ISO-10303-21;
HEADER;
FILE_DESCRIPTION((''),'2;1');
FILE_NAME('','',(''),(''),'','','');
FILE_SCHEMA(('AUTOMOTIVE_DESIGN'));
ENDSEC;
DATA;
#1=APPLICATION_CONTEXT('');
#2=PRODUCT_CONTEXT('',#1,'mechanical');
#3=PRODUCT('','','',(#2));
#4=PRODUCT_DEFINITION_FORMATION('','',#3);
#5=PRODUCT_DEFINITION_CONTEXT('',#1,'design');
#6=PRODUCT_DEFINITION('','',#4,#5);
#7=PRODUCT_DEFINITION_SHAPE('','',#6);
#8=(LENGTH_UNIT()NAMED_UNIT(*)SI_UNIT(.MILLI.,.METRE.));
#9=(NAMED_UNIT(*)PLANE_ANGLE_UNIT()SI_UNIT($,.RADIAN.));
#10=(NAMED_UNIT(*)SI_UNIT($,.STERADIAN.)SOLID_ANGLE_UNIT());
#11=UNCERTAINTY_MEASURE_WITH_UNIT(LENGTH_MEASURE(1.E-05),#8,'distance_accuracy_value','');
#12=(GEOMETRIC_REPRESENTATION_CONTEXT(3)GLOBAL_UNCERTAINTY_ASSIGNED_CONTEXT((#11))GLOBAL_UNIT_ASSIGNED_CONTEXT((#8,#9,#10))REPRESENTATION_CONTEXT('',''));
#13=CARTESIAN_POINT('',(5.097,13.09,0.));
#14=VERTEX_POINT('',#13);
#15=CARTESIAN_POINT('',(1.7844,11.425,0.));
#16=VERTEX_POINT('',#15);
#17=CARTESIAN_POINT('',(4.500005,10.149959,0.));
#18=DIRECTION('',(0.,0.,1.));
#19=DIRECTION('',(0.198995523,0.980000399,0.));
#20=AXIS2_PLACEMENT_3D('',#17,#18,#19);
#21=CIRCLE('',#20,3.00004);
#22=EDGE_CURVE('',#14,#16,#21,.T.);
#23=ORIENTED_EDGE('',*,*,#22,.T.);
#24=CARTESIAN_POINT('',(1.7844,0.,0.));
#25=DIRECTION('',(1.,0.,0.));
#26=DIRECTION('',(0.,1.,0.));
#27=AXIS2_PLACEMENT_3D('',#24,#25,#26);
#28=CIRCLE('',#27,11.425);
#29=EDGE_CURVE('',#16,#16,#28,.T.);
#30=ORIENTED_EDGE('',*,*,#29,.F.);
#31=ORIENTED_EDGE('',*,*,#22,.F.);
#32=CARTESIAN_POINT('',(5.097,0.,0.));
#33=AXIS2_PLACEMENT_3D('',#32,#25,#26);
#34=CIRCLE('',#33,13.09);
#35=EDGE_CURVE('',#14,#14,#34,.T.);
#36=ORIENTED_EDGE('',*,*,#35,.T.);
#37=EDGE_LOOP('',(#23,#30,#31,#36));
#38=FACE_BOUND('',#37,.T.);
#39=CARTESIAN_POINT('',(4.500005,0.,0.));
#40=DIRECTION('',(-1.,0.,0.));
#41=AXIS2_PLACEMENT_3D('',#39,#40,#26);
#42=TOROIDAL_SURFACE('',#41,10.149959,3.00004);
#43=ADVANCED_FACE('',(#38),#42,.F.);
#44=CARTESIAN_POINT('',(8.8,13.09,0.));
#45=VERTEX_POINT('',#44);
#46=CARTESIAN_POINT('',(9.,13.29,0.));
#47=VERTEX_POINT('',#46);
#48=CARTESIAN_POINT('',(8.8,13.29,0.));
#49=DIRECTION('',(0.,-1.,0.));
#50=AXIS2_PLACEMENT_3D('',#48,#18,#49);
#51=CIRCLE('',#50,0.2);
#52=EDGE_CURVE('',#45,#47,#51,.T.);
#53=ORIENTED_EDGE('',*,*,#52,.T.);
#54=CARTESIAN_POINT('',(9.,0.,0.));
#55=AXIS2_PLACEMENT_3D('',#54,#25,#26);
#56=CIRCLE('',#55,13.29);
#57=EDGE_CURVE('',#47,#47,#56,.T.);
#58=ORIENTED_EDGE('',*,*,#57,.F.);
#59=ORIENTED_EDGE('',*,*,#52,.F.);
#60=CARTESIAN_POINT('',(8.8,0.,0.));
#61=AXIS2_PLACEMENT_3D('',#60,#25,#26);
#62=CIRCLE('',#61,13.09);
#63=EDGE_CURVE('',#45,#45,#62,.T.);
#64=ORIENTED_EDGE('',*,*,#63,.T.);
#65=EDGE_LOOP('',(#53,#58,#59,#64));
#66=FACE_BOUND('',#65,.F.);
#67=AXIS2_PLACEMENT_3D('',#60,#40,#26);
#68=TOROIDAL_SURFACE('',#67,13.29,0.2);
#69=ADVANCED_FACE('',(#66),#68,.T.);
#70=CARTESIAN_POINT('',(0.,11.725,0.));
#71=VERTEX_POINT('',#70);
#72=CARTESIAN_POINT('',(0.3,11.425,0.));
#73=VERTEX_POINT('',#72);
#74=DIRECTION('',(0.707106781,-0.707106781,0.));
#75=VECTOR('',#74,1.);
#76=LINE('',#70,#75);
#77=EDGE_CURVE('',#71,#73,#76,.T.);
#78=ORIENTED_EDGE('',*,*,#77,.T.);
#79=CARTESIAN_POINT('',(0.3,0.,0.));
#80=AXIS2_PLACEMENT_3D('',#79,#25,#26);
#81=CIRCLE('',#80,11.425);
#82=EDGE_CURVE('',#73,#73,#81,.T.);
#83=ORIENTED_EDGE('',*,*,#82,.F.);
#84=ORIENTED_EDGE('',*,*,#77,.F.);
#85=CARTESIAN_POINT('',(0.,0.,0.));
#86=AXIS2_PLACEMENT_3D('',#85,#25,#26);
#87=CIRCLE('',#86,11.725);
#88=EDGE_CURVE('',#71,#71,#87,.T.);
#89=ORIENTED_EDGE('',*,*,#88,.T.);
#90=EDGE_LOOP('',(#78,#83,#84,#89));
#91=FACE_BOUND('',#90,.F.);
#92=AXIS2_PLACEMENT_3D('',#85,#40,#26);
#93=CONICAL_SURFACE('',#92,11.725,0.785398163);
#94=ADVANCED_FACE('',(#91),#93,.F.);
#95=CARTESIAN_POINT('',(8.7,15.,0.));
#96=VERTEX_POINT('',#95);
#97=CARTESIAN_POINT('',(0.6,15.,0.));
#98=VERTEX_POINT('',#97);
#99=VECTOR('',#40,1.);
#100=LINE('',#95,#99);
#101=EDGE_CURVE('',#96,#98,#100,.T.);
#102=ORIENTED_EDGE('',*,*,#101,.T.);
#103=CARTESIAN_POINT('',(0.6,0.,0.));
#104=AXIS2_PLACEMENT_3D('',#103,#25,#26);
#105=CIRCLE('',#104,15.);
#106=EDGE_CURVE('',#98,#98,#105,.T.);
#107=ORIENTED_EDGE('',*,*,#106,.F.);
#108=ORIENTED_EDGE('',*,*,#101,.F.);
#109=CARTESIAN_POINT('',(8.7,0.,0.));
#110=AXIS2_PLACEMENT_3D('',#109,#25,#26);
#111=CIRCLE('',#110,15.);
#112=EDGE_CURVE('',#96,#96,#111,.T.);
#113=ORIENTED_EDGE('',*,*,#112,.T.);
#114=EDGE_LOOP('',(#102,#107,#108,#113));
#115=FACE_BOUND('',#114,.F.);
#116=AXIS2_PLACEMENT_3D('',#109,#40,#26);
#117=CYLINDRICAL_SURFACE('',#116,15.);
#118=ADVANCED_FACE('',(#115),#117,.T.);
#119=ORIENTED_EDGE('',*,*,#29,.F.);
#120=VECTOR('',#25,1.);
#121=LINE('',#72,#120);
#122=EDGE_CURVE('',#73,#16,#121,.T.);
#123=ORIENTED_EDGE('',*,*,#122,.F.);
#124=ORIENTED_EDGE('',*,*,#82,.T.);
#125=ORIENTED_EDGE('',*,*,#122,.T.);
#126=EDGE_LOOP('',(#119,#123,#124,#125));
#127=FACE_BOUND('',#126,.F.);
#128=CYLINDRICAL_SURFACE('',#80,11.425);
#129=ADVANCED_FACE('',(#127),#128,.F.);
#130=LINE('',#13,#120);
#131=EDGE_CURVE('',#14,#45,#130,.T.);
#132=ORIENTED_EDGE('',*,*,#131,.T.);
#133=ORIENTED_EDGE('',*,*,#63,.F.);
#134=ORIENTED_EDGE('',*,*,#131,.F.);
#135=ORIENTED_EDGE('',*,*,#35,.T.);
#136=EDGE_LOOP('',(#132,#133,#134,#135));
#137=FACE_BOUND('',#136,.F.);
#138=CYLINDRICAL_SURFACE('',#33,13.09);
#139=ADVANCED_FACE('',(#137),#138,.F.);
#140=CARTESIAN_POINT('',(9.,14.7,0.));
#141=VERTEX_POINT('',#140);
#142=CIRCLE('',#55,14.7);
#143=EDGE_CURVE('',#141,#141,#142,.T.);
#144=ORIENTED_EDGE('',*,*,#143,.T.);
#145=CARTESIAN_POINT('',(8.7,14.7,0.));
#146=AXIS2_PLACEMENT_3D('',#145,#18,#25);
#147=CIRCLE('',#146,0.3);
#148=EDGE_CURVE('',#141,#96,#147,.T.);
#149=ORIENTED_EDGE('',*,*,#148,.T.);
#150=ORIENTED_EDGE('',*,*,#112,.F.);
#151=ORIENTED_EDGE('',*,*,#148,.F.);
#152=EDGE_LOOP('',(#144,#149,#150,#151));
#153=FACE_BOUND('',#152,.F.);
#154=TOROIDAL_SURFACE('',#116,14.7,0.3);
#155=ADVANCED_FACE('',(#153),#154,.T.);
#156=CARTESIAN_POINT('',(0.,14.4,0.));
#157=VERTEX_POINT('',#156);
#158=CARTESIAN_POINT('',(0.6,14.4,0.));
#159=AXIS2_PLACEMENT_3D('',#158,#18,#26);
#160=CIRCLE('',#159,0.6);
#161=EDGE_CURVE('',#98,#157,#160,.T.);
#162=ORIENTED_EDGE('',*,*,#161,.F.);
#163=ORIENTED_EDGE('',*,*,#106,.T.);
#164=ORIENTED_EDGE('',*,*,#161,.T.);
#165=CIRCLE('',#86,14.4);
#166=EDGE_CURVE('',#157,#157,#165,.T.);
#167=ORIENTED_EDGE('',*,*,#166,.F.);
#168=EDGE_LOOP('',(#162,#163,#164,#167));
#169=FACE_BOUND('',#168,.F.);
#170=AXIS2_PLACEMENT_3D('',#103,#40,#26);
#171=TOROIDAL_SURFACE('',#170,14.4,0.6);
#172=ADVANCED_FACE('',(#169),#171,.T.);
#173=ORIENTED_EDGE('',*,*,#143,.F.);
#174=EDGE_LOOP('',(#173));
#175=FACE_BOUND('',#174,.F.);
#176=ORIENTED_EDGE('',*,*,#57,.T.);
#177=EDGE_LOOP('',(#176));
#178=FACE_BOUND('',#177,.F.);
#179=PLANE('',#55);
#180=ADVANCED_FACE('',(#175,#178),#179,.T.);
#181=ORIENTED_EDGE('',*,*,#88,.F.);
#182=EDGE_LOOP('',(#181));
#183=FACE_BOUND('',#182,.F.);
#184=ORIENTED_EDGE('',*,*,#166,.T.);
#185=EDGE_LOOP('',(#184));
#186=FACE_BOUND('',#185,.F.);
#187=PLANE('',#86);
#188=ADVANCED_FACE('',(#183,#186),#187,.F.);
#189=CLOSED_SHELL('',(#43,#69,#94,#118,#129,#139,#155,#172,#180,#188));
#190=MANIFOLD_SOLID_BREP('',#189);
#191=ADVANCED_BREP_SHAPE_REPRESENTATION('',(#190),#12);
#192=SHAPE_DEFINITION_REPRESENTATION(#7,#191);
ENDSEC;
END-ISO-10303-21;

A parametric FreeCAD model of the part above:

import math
import FreeCAD as App
import Part
import Sketcher
from FreeCAD import Vector
Q = App.Units.Quantity

doc = App.newDocument("Part")
body = doc.addObject("PartDesign::Body", "Body")

# Sketch on XY plane
sketch1 = body.newObject("Sketcher::SketchObject", "Sketch")
sketch1.AttachmentSupport = (doc.getObject("XY_Plane"), [""])
sketch1.MapMode = "FlatFace"
sketch1.addGeometry(Part.LineSegment(Vector(0, 14.4, 0), Vector(0, 11.72, 0)), False)
sketch1.addGeometry(Part.LineSegment(Vector(0, 11.72, 0), Vector(0.3, 11.43, 0)), False)
sketch1.addGeometry(Part.LineSegment(Vector(0.3, 11.43, 0), Vector(1.78, 11.43, 0)), False)
sketch1.addGeometry(Part.ArcOfCircle(Part.Circle(Vector(4.5, 10.15, 0), Vector(0, 0, 1), 3), math.radians(79), math.radians(155)), False)
sketch1.addGeometry(Part.LineSegment(Vector(5.1, 13.09, 0), Vector(8.8, 13.09, 0)), False)
sketch1.addGeometry(Part.ArcOfCircle(Part.Circle(Vector(8.8, 13.29, 0), Vector(0, 0, 1), 0.2), math.radians(-90), math.radians(0)), False)
sketch1.addGeometry(Part.LineSegment(Vector(9, 13.29, 0), Vector(9, 14.7, 0)), False)
sketch1.addGeometry(Part.ArcOfCircle(Part.Circle(Vector(8.7, 14.7, 0), Vector(0, 0, 1), 0.3), math.radians(0), math.radians(90)), False)
sketch1.addGeometry(Part.LineSegment(Vector(8.7, 15, 0), Vector(0.6, 15, 0)), False)
sketch1.addGeometry(Part.ArcOfCircle(Part.Circle(Vector(0.6, 14.4, 0), Vector(0, 0, 1), 0.6), math.radians(90), math.radians(180)), False)
sketch1.addConstraint(Sketcher.Constraint("Coincident", 0, 2, 1, 1))
sketch1.addConstraint(Sketcher.Constraint("Coincident", 1, 2, 2, 1))
sketch1.addConstraint(Sketcher.Constraint("Coincident", 2, 2, 3, 2))
sketch1.addConstraint(Sketcher.Constraint("Coincident", 3, 1, 4, 1))
sketch1.addConstraint(Sketcher.Constraint("Tangent", 4, 2, 5, 1))
sketch1.addConstraint(Sketcher.Constraint("Tangent", 5, 2, 6, 1))
sketch1.addConstraint(Sketcher.Constraint("Tangent", 6, 2, 7, 1))
sketch1.addConstraint(Sketcher.Constraint("Tangent", 7, 2, 8, 1))
sketch1.addConstraint(Sketcher.Constraint("Tangent", 8, 2, 9, 1))
sketch1.addConstraint(Sketcher.Constraint("Tangent", 9, 2, 0, 1))
sketch1.addConstraint(Sketcher.Constraint("Vertical", 0))
sketch1.addConstraint(Sketcher.Constraint("Horizontal", 2))
sketch1.addConstraint(Sketcher.Constraint("Horizontal", 4))
sketch1.addConstraint(Sketcher.Constraint("Vertical", 6))
sketch1.addConstraint(Sketcher.Constraint("Horizontal", 8))
sketch1.addConstraint(Sketcher.Constraint("PointOnObject", 0, 2, -2))
sketch1.addConstraint(Sketcher.Constraint("Radius", 3, 3.0))
sketch1.addConstraint(Sketcher.Constraint("Radius", 5, 0.2))
sketch1.addConstraint(Sketcher.Constraint("Radius", 7, 0.3))
sketch1.addConstraint(Sketcher.Constraint("Radius", 9, 0.6))
sketch1.addConstraint(Sketcher.Constraint("Angle", 1, Q("-45 deg")))
sketch1.addConstraint(Sketcher.Constraint("DistanceX", 8, 2, 8, 1, 8.1))
sketch1.addConstraint(Sketcher.Constraint("DistanceY", -1, 1, 7, 2, 15.0))
sketch1.addConstraint(Sketcher.Constraint("DistanceY", 6, 1, 6, 2, 1.41))
sketch1.addConstraint(Sketcher.Constraint("DistanceX", -1, 1, 3, 3, 4.5))
sketch1.addConstraint(Sketcher.Constraint("DistanceX", -1, 1, 1, 2, 0.3))
sketch1.addConstraint(Sketcher.Constraint("DistanceX", 4, 1, 4, 2, 3.703))
sketch1.addConstraint(Sketcher.Constraint("DistanceY", 0, 2, 0, 1, 2.675))
revolution = body.newObject("PartDesign::Revolution", "Revolution")
revolution.Profile = sketch1
revolution.ReferenceAxis = (sketch1, ["H_Axis"])
revolution.Angle = 360

doc.recompute()
